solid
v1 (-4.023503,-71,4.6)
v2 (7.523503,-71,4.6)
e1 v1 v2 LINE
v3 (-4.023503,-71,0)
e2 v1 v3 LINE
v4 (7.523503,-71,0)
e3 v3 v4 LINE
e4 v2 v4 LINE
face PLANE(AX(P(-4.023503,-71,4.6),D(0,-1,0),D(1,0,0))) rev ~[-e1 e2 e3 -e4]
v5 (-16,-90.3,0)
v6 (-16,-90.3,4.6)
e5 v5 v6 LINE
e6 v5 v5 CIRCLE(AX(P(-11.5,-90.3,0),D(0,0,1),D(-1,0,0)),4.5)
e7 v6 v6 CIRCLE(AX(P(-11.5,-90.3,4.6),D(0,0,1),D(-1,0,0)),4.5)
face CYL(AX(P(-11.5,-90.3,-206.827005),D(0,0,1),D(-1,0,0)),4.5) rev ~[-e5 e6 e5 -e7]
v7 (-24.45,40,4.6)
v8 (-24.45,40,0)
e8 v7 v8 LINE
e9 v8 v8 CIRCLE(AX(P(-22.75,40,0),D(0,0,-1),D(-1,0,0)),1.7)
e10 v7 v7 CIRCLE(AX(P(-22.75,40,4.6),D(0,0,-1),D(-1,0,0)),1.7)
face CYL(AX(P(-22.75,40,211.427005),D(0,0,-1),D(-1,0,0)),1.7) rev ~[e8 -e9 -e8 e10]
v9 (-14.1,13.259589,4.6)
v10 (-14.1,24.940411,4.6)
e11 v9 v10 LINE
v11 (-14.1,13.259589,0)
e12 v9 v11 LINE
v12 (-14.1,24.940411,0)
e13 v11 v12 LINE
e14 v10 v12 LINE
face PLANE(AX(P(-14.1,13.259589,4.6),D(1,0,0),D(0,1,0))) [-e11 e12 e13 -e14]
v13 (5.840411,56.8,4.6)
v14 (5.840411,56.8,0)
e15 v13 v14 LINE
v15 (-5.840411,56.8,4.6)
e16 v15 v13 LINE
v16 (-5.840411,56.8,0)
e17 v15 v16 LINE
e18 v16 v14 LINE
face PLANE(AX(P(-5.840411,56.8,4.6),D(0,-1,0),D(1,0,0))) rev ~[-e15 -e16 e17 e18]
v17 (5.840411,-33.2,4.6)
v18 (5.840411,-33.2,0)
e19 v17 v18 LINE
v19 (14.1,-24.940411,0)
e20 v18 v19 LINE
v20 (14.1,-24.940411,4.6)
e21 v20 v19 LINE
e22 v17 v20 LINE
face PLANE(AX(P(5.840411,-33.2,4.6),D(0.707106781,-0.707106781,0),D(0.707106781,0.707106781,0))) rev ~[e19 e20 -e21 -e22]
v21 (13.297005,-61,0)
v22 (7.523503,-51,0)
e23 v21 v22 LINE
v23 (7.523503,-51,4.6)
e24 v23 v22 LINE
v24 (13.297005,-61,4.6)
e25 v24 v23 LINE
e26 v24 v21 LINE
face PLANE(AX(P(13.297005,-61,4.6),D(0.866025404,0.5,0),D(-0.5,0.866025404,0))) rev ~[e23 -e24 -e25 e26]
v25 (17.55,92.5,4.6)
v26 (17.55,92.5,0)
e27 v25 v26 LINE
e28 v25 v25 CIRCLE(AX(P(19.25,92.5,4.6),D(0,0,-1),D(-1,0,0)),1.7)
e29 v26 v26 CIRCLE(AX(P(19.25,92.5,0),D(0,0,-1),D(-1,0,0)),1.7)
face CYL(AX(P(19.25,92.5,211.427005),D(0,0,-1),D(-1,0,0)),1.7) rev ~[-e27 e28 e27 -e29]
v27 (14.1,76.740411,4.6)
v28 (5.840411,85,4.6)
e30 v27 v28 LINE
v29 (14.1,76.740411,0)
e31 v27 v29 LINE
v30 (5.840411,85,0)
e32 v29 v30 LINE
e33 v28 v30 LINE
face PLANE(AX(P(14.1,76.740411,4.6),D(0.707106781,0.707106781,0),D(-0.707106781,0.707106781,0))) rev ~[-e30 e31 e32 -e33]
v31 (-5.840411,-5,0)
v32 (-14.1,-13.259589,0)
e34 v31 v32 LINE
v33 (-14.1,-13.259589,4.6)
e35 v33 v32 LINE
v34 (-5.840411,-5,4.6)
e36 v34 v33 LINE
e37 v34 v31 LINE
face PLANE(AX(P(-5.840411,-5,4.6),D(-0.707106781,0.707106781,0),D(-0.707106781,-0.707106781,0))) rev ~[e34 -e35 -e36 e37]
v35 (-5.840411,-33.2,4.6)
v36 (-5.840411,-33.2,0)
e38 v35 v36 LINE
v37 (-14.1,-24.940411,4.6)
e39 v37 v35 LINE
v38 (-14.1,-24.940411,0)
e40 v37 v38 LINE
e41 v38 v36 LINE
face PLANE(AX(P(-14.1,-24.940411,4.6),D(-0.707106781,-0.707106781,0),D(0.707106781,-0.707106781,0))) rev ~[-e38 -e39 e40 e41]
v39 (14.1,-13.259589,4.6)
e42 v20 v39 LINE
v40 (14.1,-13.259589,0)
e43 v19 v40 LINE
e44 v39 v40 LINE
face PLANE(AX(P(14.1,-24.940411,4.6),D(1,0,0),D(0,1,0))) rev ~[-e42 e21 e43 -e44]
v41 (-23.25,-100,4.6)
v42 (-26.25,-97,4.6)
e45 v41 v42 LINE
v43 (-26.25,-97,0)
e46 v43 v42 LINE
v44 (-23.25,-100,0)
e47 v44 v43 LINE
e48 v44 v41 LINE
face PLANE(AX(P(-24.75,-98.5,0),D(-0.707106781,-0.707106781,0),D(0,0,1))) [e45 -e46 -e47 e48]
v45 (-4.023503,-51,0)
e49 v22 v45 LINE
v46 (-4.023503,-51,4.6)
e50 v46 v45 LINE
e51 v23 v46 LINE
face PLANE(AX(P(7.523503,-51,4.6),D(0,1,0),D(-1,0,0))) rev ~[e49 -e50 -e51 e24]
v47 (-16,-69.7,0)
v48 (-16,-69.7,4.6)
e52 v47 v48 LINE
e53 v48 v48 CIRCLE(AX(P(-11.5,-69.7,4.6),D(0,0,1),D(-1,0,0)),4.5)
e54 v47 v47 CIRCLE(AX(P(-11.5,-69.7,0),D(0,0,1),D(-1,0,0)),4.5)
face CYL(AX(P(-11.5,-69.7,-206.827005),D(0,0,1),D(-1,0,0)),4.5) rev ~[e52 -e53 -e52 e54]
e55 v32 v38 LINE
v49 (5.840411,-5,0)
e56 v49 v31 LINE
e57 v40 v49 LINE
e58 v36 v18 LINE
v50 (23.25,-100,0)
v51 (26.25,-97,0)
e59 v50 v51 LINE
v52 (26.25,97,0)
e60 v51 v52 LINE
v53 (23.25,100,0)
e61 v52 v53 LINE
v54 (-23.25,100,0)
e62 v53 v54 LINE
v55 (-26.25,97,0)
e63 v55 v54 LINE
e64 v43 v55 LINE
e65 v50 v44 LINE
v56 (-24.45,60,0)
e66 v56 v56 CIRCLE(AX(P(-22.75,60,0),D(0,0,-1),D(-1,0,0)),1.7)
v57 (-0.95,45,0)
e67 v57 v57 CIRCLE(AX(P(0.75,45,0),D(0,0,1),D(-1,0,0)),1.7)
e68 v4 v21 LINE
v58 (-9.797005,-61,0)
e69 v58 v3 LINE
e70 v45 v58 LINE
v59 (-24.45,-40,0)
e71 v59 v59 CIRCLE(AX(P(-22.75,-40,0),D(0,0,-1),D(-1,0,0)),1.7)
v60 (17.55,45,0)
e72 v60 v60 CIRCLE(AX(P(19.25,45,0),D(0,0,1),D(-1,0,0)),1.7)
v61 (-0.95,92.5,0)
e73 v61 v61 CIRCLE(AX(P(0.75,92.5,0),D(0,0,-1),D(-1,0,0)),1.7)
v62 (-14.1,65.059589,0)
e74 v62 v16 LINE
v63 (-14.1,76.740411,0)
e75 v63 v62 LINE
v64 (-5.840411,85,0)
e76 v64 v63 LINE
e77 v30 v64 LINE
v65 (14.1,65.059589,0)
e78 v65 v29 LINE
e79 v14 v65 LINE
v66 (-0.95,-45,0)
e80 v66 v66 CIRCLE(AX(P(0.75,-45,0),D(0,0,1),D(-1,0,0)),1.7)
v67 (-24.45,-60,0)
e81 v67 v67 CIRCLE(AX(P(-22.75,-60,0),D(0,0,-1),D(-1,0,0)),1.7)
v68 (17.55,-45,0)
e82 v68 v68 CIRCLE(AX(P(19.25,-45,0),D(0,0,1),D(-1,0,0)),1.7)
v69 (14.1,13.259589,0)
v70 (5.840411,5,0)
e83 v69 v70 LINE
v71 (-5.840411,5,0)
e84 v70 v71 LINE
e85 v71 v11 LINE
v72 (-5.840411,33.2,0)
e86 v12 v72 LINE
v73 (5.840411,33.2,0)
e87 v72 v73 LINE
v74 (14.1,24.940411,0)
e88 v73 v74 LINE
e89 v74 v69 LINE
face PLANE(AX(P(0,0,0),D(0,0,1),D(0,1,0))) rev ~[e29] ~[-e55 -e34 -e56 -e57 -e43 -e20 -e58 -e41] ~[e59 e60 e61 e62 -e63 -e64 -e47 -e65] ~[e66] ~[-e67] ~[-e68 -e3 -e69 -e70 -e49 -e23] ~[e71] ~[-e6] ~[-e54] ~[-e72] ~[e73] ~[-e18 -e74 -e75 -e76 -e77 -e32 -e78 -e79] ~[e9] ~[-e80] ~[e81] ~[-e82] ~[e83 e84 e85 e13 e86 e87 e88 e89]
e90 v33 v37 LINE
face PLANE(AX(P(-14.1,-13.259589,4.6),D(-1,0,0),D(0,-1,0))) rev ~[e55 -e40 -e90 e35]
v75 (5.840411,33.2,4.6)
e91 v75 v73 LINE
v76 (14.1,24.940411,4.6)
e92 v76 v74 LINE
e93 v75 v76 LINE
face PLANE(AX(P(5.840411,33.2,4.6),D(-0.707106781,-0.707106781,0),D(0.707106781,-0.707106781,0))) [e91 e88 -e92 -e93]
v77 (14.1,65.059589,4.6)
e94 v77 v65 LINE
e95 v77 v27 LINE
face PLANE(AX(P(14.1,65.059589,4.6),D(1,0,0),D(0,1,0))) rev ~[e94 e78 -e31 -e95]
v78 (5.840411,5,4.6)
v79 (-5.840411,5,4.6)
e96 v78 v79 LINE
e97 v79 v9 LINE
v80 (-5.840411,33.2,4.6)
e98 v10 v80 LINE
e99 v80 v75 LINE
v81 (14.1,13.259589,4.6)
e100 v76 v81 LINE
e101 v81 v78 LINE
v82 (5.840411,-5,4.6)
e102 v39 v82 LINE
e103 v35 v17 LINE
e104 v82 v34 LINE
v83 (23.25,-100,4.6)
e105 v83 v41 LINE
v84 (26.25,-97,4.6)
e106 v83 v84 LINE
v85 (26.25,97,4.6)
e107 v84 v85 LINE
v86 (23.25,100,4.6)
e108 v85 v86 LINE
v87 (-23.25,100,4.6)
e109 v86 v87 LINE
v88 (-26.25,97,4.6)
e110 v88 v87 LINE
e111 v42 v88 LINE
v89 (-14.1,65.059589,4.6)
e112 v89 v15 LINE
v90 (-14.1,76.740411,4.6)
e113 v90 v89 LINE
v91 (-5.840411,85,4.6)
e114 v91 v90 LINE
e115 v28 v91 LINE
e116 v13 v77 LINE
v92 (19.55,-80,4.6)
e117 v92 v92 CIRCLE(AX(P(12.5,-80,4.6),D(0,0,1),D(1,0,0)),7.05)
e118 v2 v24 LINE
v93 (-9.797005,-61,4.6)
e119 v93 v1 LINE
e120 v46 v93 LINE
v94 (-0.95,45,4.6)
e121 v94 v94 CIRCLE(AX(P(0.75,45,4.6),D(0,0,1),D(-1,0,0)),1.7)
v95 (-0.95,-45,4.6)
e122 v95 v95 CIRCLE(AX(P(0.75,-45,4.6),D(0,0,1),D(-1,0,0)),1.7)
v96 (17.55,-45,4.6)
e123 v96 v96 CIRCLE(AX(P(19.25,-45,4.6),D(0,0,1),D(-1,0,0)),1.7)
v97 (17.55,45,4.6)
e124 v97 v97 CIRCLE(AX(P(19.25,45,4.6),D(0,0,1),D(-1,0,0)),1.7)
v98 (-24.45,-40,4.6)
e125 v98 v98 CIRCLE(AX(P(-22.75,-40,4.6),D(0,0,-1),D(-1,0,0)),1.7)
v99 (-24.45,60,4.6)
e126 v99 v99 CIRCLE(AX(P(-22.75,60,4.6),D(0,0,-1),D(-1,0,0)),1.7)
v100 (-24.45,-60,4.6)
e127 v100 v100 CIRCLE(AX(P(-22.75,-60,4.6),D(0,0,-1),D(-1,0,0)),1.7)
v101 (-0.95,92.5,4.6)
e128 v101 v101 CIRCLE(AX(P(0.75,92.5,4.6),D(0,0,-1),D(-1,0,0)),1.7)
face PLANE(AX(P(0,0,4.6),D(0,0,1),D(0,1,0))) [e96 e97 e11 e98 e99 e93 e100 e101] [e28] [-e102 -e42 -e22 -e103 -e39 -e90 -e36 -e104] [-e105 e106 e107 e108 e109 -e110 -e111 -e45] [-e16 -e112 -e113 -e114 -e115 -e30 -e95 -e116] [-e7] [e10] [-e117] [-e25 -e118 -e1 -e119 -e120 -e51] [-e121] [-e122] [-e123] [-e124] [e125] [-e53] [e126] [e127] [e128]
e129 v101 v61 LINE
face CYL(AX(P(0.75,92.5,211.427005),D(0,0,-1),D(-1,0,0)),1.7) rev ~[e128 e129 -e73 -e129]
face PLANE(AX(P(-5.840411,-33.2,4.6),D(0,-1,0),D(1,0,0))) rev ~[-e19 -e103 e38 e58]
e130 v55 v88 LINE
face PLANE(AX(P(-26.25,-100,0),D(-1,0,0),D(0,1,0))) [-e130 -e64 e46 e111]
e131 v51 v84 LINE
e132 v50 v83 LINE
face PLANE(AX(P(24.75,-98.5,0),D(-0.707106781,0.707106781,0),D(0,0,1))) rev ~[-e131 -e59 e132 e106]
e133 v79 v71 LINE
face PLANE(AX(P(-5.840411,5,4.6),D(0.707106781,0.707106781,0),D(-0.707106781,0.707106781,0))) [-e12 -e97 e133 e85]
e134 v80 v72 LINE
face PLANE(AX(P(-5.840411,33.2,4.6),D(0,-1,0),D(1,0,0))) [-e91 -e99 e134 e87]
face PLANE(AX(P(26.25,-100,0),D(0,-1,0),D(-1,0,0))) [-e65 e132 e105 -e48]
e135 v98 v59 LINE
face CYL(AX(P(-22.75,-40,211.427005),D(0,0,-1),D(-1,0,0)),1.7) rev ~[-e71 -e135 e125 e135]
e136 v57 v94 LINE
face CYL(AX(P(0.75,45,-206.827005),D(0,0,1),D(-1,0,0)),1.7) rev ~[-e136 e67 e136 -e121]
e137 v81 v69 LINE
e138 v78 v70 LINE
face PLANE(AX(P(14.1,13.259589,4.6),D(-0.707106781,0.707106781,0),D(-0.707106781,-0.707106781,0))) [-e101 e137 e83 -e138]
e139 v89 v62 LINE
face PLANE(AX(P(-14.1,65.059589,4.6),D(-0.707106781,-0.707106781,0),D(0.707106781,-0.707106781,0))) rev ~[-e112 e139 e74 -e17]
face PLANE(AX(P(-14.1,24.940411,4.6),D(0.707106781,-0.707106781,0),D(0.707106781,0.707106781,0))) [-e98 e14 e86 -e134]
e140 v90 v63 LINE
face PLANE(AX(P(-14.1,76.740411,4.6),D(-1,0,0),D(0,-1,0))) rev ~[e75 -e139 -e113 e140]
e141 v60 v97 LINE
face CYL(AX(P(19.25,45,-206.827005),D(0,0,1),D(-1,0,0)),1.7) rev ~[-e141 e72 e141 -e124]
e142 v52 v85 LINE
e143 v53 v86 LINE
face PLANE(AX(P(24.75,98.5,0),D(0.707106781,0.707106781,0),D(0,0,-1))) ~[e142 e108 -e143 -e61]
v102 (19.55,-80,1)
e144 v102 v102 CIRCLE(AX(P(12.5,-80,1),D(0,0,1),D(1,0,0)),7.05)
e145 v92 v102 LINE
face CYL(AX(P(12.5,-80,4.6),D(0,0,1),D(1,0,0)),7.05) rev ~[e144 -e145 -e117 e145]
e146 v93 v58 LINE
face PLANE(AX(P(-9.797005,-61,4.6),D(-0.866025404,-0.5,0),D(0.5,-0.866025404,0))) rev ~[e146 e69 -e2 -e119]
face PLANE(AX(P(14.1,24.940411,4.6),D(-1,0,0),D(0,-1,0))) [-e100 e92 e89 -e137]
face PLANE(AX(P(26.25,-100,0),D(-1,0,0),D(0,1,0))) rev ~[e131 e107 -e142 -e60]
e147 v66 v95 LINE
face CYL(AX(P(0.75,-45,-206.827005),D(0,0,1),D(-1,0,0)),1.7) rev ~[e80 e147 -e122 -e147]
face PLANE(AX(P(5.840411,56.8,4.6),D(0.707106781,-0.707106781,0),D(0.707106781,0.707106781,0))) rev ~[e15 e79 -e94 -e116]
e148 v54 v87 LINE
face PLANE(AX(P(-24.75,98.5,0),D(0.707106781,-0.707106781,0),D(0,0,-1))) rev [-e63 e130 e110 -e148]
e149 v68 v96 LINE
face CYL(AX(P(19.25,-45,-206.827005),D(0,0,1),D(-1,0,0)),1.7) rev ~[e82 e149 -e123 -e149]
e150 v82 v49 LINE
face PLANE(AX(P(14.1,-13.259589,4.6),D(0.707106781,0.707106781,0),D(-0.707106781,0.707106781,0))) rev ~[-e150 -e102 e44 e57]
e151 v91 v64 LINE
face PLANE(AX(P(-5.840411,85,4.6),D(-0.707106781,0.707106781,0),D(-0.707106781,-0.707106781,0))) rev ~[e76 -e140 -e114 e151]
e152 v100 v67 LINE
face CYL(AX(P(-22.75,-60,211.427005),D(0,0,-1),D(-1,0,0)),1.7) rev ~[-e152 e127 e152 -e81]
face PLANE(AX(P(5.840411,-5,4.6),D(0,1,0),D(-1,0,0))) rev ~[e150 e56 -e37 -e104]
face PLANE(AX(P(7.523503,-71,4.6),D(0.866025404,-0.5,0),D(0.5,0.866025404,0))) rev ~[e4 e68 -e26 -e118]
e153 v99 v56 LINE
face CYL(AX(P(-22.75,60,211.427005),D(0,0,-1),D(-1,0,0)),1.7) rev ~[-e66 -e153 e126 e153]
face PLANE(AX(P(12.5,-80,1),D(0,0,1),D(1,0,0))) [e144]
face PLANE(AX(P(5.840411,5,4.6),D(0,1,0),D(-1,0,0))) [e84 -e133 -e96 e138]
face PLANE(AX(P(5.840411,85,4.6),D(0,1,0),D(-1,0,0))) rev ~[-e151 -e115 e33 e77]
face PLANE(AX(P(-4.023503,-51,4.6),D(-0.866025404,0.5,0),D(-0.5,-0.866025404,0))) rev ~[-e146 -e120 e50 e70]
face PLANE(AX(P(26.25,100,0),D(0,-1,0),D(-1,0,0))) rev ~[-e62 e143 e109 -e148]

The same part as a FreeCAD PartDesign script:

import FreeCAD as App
import Part
import Sketcher

V = App.Vector
Q = App.Units.Quantity


def edges_at(feature, points):
    """Names of the edges that pass closest to the given points."""
    edges = feature.Shape.Edges
    near = lambda p: min(range(len(edges)), key=lambda i: edges[i].distToShape(Part.Vertex(*p))[0])
    return sorted({f"Edge{near(p) + 1}" for p in points})


def add_polygon(sketch, points):
    """Adds a closed chain of lines whose ends are joined by coincident constraints."""
    first, n = sketch.GeometryCount, len(points)
    for a, b in zip(points, points[1:] + points[:1]):
        sketch.addGeometry(Part.LineSegment(App.Vector(*a, 0), App.Vector(*b, 0)), False)
    for i in range(n):
        sketch.addConstraint(Sketcher.Constraint("Coincident", first + i, 2, first + (i + 1) % n, 1))

doc = App.newDocument("Part")
body = doc.addObject("PartDesign::Body", "Body")

# Sketch on XY plane
sketch1 = body.newObject("Sketcher::SketchObject", "Sketch")
sketch1.AttachmentSupport = (doc.getObject("XY_Plane"), [""])
sketch1.MapMode = "FlatFace"
add_polygon(sketch1, [(-26, -100), (26, -100), (26, 100), (-26, 100)])  # lines 0-3
sketch1.addConstraint([
    Sketcher.Constraint("Horizontal", 0),
    Sketcher.Constraint("Vertical", 1),
    Sketcher.Constraint("Horizontal", 2),
    Sketcher.Constraint("Vertical", 3),
    Sketcher.Constraint("Symmetric", 0, 2, 2, 2, -1, 1),
    Sketcher.Constraint("DistanceY", 1, 1, 1, 2, 200.0),
    Sketcher.Constraint("DistanceX", 0, 1, 0, 2, 52.5),
])
pad1 = body.newObject("PartDesign::Pad", "Pad")
pad1.Profile = sketch1
pad1.Length = 4.6

# Sketch on XY plane
sketch2 = body.newObject("Sketcher::SketchObject", "Sketch001")
sketch2.AttachmentSupport = (doc.getObject("XY_Plane"), [""])
sketch2.MapMode = "FlatFace"
sketch2.AttachmentOffset = App.Placement(V(0, 0, 4.6), App.Rotation())
sketch2.addGeometry(Part.Circle(V(12, -80, 0), V(0, 0, 1), 7), False)
sketch2.addConstraint([
    Sketcher.Constraint("Diameter", 0, 14.1),
    Sketcher.Constraint("DistanceY", 0, 3, -1, 1, 80.0),
    Sketcher.Constraint("DistanceX", -1, 1, 0, 3, 12.5),
])
pocket1 = body.newObject("PartDesign::Pocket", "Pocket")
pocket1.Profile = sketch2
pocket1.Length = 3.6

# Sketch on XY plane
sketch3 = body.newObject("Sketcher::SketchObject", "Sketch002")
sketch3.AttachmentSupport = (doc.getObject("XY_Plane"), [""])
sketch3.MapMode = "FlatFace"
sketch3.addGeometry([
    Part.Circle(V(19.2, 45, 0), V(0, 0, 1), 1.7),
    Part.Circle(V(19.2, -45, 0), V(0, 0, 1), 1.7),
    Part.Circle(V(0.8, -45, 0), V(0, 0, 1), 1.7),
    Part.Circle(V(0.8, 45, 0), V(0, 0, 1), 1.7),
], False)
sketch3.addConstraint([
    Sketcher.Constraint("Equal", 0, 1),
    Sketcher.Constraint("Equal", 1, 2),
    Sketcher.Constraint("Equal", 2, 3),
    Sketcher.Constraint("Symmetric", 0, 3, 1, 3, -1),
    Sketcher.Constraint("Symmetric", 2, 3, 3, 3, -1),
    Sketcher.Constraint("Horizontal", 1, 3, 2, 3),
    Sketcher.Constraint("Diameter", 0, 3.4),
    Sketcher.Constraint("DistanceY", -1, 1, 0, 3, 45.0),
    Sketcher.Constraint("DistanceX", 2, 3, 1, 3, 18.5),
    Sketcher.Constraint("DistanceX", -1, 1, 0, 3, 19.25),
])
doc.recompute()
hole = body.newObject("PartDesign::Hole", "Hole")
hole.Profile = sketch3
hole.ThreadType = "None"
hole.Diameter = 3.4
hole.DepthType = "ThroughAll"
hole.Reversed = True
doc.recompute()

chamfer = body.newObject("PartDesign::Chamfer", "Chamfer")
chamfer.Base = (hole, edges_at(hole, [
    (26.25, 100, 2.3),
    (26.25, -100, 2.3),
    (-26.25, -100, 2.3),
    (-26.25, 100, 2.3),
]))
chamfer.Size = 3

# Sketch on XY plane
sketch4 = body.newObject("Sketcher::SketchObject", "Sketch003")
sketch4.AttachmentSupport = (doc.getObject("XY_Plane"), [""])
sketch4.MapMode = "FlatFace"
sketch4.AttachmentOffset = App.Placement(V(0, 0, 4.6), App.Rotation())
sketch4.addGeometry([
    Part.Circle(V(-22.8, -60, 0), V(0, 0, 1), 1.7),
    Part.Circle(V(-22.8, -40, 0), V(0, 0, 1), 1.7),
    Part.Circle(V(-22.8, 40, 0), V(0, 0, 1), 1.7),
    Part.Circle(V(-22.8, 60, 0), V(0, 0, 1), 1.7),
], False)
sketch4.addConstraint([
    Sketcher.Constraint("Equal", 0, 1),
    Sketcher.Constraint("Equal", 1, 2),
    Sketcher.Constraint("Equal", 2, 3),
    Sketcher.Constraint("Symmetric", 1, 3, 2, 3, -1),
    Sketcher.Constraint("Symmetric", 0, 3, 3, 3, -1),
    Sketcher.Constraint("Vertical", 0, 3, 1, 3),
    Sketcher.Constraint("Diameter", 0, 3.4),
    Sketcher.Constraint("DistanceY", 0, 3, -1, 1, 60.0),
    Sketcher.Constraint("DistanceY", 1, 3, -1, 1, 40.0),
    Sketcher.Constraint("DistanceX", 0, 3, -1, 1, 22.75),
])
doc.recompute()
hole2 = body.newObject("PartDesign::Hole", "Hole001")
hole2.Profile = sketch4
hole2.ThreadType = "None"
hole2.Diameter = 3.4
hole2.DepthType = "ThroughAll"

# Sketch on XY plane
sketch5 = body.newObject("Sketcher::SketchObject", "Sketch004")
sketch5.AttachmentSupport = (doc.getObject("XY_Plane"), [""])
sketch5.MapMode = "FlatFace"
sketch5.AttachmentOffset = App.Placement(V(0, 0, 4.6), App.Rotation())
add_polygon(sketch5, [(6, 33), (-6, 33), (-14, 25), (-14, 13), (-6, 5), (6, 5), (14, 13), (14, 25)])  # lines 0-7
add_polygon(sketch5, [(6, -33), (14, -25), (14, -13), (6, -5), (-6, -5), (-14, -13), (-14, -25), (-6, -33)])  # lines 8-15
add_polygon(sketch5, [(13, -61), (8, -51), (-4, -51), (-10, -61), (-4, -71), (8, -71)])  # lines 16-21
add_polygon(sketch5, [(6, 57), (14, 65), (14, 77), (6, 85), (-6, 85), (-14, 77), (-14, 65), (-6, 57)])  # lines 22-29
sketch5.addConstraint([
    Sketcher.Constraint("Horizontal", 0),
    Sketcher.Constraint("Vertical", 2),
    Sketcher.Constraint("Horizontal", 4),
    Sketcher.Constraint("Vertical", 6),
    Sketcher.Constraint("Vertical", 9),
    Sketcher.Constraint("Horizontal", 11),
    Sketcher.Constraint("Vertical", 13),
    Sketcher.Constraint("Horizontal", 15),
    Sketcher.Constraint("Horizontal", 17),
    Sketcher.Constraint("Horizontal", 20),
    Sketcher.Constraint("Vertical", 23),
    Sketcher.Constraint("Horizontal", 25),
    Sketcher.Constraint("Vertical", 27),
    Sketcher.Constraint("Horizontal", 29),
    Sketcher.Constraint("Symmetric", 1, 2, 8, 2, -1, 1),
    Sketcher.Constraint("Symmetric", 3, 2, 10, 2, -1, 1),
    Sketcher.Constraint("Symmetric", 5, 2, 12, 2, -1, 1),
    Sketcher.Constraint("Symmetric", 7, 2, 14, 2, -1, 1),
    Sketcher.Constraint("Symmetric", 2, 2, 5, 2, -2),
    Sketcher.Constraint("Symmetric", 23, 2, 26, 2, -2),
    Sketcher.Constraint("Perpendicular", 1, 3),
    Sketcher.Constraint("Perpendicular", 3, 5),
    Sketcher.Constraint("Perpendicular", 5, 7),
    Sketcher.Constraint("Perpendicular", 7, 8),
    Sketcher.Constraint("Perpendicular", 8, 10),
    Sketcher.Constraint("Perpendicular", 10, 12),
    Sketcher.Constraint("Perpendicular", 12, 14),
    Sketcher.Constraint("Parallel", 16, 19),
    Sketcher.Constraint("Parallel", 18, 21),
    Sketcher.Constraint("Perpendicular", 14, 22),
    Sketcher.Constraint("Perpendicular", 22, 24),
    Sketcher.Constraint("Perpendicular", 24, 26),
    Sketcher.Constraint("Perpendicular", 26, 28),
    Sketcher.Constraint("Horizontal", 1, 2, 6, 2),
    Sketcher.Constraint("Horizontal", 18, 2, 21, 2),
    Sketcher.Constraint("Horizontal", 22, 2, 27, 2),
    Sketcher.Constraint("Vertical", 0, 2, 3, 2),
    Sketcher.Constraint("Vertical", 4, 2, 7, 2),
    Sketcher.Constraint("Vertical", 17, 2, 19, 2),
    Sketcher.Constraint("Vertical", 16, 2, 20, 2),
    Sketcher.Constraint("Vertical", 9, 2, 22, 2),
    Sketcher.Constraint("Vertical", 15, 2, 24, 2),
    Sketcher.Constraint("Vertical", 25, 2, 28, 2),
    Sketcher.Constraint("Equal", 29, 2),
    Sketcher.Constraint("Equal", 13, 23),
    Sketcher.Constraint("Angle", 16, Q("120 deg")),
    Sketcher.Constraint("DistanceY", -1, 1, 3, 2, 5.0),
    Sketcher.Constraint("DistanceY", 16, 2, -1, 1, 51.0),
    Sketcher.Constraint("DistanceY", 18, 2, -1, 1, 61.0),
    Sketcher.Constraint("DistanceY", -1, 1, 24, 2, 85.0),
    Sketcher.Constraint("DistanceY", -1, 1, 0, 2, 33.2),
    Sketcher.Constraint("DistanceX", 0, 2, 0, 1, 11.680822),
    Sketcher.Constraint("DistanceX", 17, 2, 17, 1, 11.547005),
    Sketcher.Constraint("DistanceX", 15, 2, 16, 2, 1.683091),
])
pocket2 = body.newObject("PartDesign::Pocket", "Pocket001")
pocket2.Profile = sketch5
pocket2.Type = "ThroughAll"

# Sketch on XY plane
sketch6 = body.newObject("Sketcher::SketchObject", "Sketch005")
sketch6.AttachmentSupport = (doc.getObject("XY_Plane"), [""])
sketch6.MapMode = "FlatFace"
sketch6.AttachmentOffset = App.Placement(V(0, 0, 4.6), App.Rotation())
sketch6.addGeometry([
    Part.Circle(V(0.8, 92.5, 0), V(0, 0, 1), 1.7),
    Part.Circle(V(19.2, 92.5, 0), V(0, 0, 1), 1.7),
], False)
sketch6.addConstraint([
    Sketcher.Constraint("Equal", 0, 1),
    Sketcher.Constraint("Horizontal", 0, 3, 1, 3),
    Sketcher.Constraint("Diameter", 0, 3.4),
    Sketcher.Constraint("DistanceY", -1, 1, 0, 3, 92.5),
    Sketcher.Constraint("DistanceX", 0, 3, 1, 3, 18.5),
    Sketcher.Constraint("DistanceX", -1, 1, 0, 3, 0.75),
])
doc.recompute()
hole3 = body.newObject("PartDesign::Hole", "Hole002")
hole3.Profile = sketch6
hole3.ThreadType = "None"
hole3.Diameter = 3.4
hole3.DepthType = "ThroughAll"

# Sketch on XY plane
sketch7 = body.newObject("Sketcher::SketchObject", "Sketch006")
sketch7.AttachmentSupport = (doc.getObject("XY_Plane"), [""])
sketch7.MapMode = "FlatFace"
sketch7.addGeometry([
    Part.Circle(V(-11.5, -69.7, 0), V(0, 0, 1), 4.5),
    Part.Circle(V(-11.5, -90.3, 0), V(0, 0, 1), 4.5),
], False)
sketch7.addConstraint([
    Sketcher.Constraint("Equal", 0, 1),
    Sketcher.Constraint("Vertical", 0, 3, 1, 3),
    Sketcher.Constraint("Diameter", 0, 9.0),
    Sketcher.Constraint("DistanceX", 0, 3, -1, 1, 11.5),
    Sketcher.Constraint("DistanceY", 0, 3, -1, 1, 69.7),
    Sketcher.Constraint("DistanceY", 1, 3, -1, 1, 90.3),
])
doc.recompute()
hole4 = body.newObject("PartDesign::Hole", "Hole003")
hole4.Profile = sketch7
hole4.ThreadType = "None"
hole4.Diameter = 9
hole4.DepthType = "ThroughAll"
hole4.Reversed = True

doc.recompute()
